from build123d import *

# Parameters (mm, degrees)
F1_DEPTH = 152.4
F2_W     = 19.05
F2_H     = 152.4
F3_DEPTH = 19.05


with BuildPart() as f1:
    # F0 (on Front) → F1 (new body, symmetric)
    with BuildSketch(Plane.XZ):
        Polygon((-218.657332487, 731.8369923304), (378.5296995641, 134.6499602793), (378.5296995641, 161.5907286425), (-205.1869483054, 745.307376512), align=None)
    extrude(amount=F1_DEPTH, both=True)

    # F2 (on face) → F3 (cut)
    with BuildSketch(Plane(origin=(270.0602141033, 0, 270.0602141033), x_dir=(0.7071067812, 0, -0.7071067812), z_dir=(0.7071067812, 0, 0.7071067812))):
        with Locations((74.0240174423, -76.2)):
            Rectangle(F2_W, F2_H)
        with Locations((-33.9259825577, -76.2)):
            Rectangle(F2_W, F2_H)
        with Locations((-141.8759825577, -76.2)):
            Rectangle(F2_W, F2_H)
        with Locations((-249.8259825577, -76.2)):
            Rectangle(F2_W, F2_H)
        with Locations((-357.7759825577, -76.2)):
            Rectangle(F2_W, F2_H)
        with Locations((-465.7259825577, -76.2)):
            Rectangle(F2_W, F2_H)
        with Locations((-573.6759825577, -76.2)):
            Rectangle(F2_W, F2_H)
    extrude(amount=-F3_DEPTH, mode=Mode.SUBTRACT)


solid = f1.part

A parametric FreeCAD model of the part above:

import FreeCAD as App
import Part
import Sketcher
from FreeCAD import Vector
Q = App.Units.Quantity


def add_polygon(sketch, points):
    """Adds a closed chain of lines whose ends are joined by coincident constraints."""
    first, n = sketch.GeometryCount, len(points)
    for a, b in zip(points, points[1:] + points[:1]):
        sketch.addGeometry(Part.LineSegment(App.Vector(*a, 0), App.Vector(*b, 0)), False)
    for i in range(n):
        sketch.addConstraint(Sketcher.Constraint("Coincident", first + i, 2, first + (i + 1) % n, 1))

doc = App.newDocument("Part")
body = doc.addObject("PartDesign::Body", "Body")

# Sketch on XZ plane
sketch1 = doc.addObject("Sketcher::SketchObject", "Sketch")
body.addObject(sketch1)
sketch1.AttachmentSupport = (doc.XZ_Plane, [""])
sketch1.MapMode = "FlatFace"
add_polygon(sketch1, [(-219, 732), (379, 135), (379, 162), (-205, 745)])  # lines 0-3
sketch1.addConstraint([
    Sketcher.Constraint("Vertical", 1),
    Sketcher.Constraint("Parallel", 0, 2),
    Sketcher.Constraint("Perpendicular", 2, 3),
    Sketcher.Constraint("Angle", 0, Q("-45 deg")),
    Sketcher.Constraint("Distance", 2, Q("32.5 in")),
    Sketcher.Constraint("Distance", 0, Q("33.25 in")),
    Sketcher.Constraint("DistanceX", -1, 1, 0, 2, 378.5297),
    Sketcher.Constraint("DistanceY", -1, 1, 0, 2, 134.64996),
])
pad1 = doc.addObject("PartDesign::Pad", "Pad")
body.addObject(pad1)
pad1.Profile = sketch1
pad1.Length = Q("12 in")
pad1.Midplane = True

# Sketch on an angled plane
sketch2 = doc.addObject("Sketcher::SketchObject", "Sketch001")
body.addObject(sketch2)
sketch2.Placement = App.Placement(Vector(270.060214, 0, 270.060214), App.Rotation(Vector(0.707106781, 0, -0.707106781), Vector(0, 0.999999999, 0), Vector(0.707106781, 0, 0.707106781), "ZXY"))
add_polygon(sketch2, [(64, 0), (64, -152), (84, -152), (84, 0)])  # lines 0-3
add_polygon(sketch2, [(-43, 0), (-43, -152), (-24, -152), (-24, 0)])  # lines 4-7
add_polygon(sketch2, [(-151, 0), (-151, -152), (-132, -152), (-132, 0)])  # lines 8-11
add_polygon(sketch2, [(-259, 0), (-259, -152), (-240, -152), (-240, 0)])  # lines 12-15
add_polygon(sketch2, [(-367, 0), (-367, -152), (-348, -152), (-348, 0)])  # lines 16-19
add_polygon(sketch2, [(-475, 0), (-475, -152), (-456, -152), (-456, 0)])  # lines 20-23
add_polygon(sketch2, [(-583, 0), (-583, -152), (-564, -152), (-564, 0)])  # lines 24-27
sketch2.addConstraint([
    Sketcher.Constraint("Vertical", 0),
    Sketcher.Constraint("Horizontal", 1),
    Sketcher.Constraint("Vertical", 2),
    Sketcher.Constraint("Horizontal", 3),
    Sketcher.Constraint("Vertical", 4),
    Sketcher.Constraint("Horizontal", 5),
    Sketcher.Constraint("Vertical", 6),
    Sketcher.Constraint("Horizontal", 7),
    Sketcher.Constraint("Vertical", 8),
    Sketcher.Constraint("Horizontal", 9),
    Sketcher.Constraint("Vertical", 10),
    Sketcher.Constraint("Horizontal", 11),
    Sketcher.Constraint("Vertical", 12),
    Sketcher.Constraint("Horizontal", 13),
    Sketcher.Constraint("Vertical", 14),
    Sketcher.Constraint("Horizontal", 15),
    Sketcher.Constraint("Vertical", 16),
    Sketcher.Constraint("Horizontal", 17),
    Sketcher.Constraint("Vertical", 18),
    Sketcher.Constraint("Horizontal", 19),
    Sketcher.Constraint("Vertical", 20),
    Sketcher.Constraint("Horizontal", 21),
    Sketcher.Constraint("Vertical", 22),
    Sketcher.Constraint("Horizontal", 23),
    Sketcher.Constraint("Vertical", 24),
    Sketcher.Constraint("Horizontal", 25),
    Sketcher.Constraint("Vertical", 26),
    Sketcher.Constraint("Horizontal", 27),
    Sketcher.Constraint("PointOnObject", 2, 2, -1),
    Sketcher.Constraint("PointOnObject", 6, 2, -1),
    Sketcher.Constraint("PointOnObject", 10, 2, -1),
    Sketcher.Constraint("PointOnObject", 14, 2, -1),
    Sketcher.Constraint("PointOnObject", 18, 2, -1),
    Sketcher.Constraint("PointOnObject", 22, 2, -1),
    Sketcher.Constraint("PointOnObject", 26, 2, -1),
    Sketcher.Constraint("Horizontal", 1, 2, 4, 2),
    Sketcher.Constraint("Horizontal", 5, 2, 8, 2),
    Sketcher.Constraint("Horizontal", 9, 2, 12, 2),
    Sketcher.Constraint("Horizontal", 13, 2, 16, 2),
    Sketcher.Constraint("Horizontal", 17, 2, 20, 2),
    Sketcher.Constraint("Horizontal", 21, 2, 24, 2),
    Sketcher.Constraint("Equal", 3, 5),
    Sketcher.Constraint("Equal", 7, 9),
    Sketcher.Constraint("Equal", 11, 13),
    Sketcher.Constraint("Equal", 15, 17),
    Sketcher.Constraint("Equal", 19, 21),
    Sketcher.Constraint("Equal", 23, 25),
    Sketcher.Constraint("DistanceY", 0, 2, 0, 1, Q("6 in")),
    Sketcher.Constraint("DistanceX", 4, 2, 1, 2, Q("5 in")),
    Sketcher.Constraint("DistanceX", 8, 2, 5, 2, Q("5 in")),
    Sketcher.Constraint("DistanceX", 12, 2, 9, 2, Q("5 in")),
    Sketcher.Constraint("DistanceX", 16, 2, 13, 2, Q("5 in")),
    Sketcher.Constraint("DistanceX", 20, 2, 17, 2, Q("5 in")),
    Sketcher.Constraint("DistanceX", 24, 2, 21, 2, Q("5 in")),
    Sketcher.Constraint("DistanceX", 1, 1, 1, 2, Q("0.75 in")),
    Sketcher.Constraint("DistanceX", -1, 1, 0, 2, 64.499017),
])
pocket1 = doc.addObject("PartDesign::Pocket", "Pocket")
body.addObject(pocket1)
pocket1.Profile = sketch2
pocket1.Length = Q("0.75 in")

doc.recompute()
